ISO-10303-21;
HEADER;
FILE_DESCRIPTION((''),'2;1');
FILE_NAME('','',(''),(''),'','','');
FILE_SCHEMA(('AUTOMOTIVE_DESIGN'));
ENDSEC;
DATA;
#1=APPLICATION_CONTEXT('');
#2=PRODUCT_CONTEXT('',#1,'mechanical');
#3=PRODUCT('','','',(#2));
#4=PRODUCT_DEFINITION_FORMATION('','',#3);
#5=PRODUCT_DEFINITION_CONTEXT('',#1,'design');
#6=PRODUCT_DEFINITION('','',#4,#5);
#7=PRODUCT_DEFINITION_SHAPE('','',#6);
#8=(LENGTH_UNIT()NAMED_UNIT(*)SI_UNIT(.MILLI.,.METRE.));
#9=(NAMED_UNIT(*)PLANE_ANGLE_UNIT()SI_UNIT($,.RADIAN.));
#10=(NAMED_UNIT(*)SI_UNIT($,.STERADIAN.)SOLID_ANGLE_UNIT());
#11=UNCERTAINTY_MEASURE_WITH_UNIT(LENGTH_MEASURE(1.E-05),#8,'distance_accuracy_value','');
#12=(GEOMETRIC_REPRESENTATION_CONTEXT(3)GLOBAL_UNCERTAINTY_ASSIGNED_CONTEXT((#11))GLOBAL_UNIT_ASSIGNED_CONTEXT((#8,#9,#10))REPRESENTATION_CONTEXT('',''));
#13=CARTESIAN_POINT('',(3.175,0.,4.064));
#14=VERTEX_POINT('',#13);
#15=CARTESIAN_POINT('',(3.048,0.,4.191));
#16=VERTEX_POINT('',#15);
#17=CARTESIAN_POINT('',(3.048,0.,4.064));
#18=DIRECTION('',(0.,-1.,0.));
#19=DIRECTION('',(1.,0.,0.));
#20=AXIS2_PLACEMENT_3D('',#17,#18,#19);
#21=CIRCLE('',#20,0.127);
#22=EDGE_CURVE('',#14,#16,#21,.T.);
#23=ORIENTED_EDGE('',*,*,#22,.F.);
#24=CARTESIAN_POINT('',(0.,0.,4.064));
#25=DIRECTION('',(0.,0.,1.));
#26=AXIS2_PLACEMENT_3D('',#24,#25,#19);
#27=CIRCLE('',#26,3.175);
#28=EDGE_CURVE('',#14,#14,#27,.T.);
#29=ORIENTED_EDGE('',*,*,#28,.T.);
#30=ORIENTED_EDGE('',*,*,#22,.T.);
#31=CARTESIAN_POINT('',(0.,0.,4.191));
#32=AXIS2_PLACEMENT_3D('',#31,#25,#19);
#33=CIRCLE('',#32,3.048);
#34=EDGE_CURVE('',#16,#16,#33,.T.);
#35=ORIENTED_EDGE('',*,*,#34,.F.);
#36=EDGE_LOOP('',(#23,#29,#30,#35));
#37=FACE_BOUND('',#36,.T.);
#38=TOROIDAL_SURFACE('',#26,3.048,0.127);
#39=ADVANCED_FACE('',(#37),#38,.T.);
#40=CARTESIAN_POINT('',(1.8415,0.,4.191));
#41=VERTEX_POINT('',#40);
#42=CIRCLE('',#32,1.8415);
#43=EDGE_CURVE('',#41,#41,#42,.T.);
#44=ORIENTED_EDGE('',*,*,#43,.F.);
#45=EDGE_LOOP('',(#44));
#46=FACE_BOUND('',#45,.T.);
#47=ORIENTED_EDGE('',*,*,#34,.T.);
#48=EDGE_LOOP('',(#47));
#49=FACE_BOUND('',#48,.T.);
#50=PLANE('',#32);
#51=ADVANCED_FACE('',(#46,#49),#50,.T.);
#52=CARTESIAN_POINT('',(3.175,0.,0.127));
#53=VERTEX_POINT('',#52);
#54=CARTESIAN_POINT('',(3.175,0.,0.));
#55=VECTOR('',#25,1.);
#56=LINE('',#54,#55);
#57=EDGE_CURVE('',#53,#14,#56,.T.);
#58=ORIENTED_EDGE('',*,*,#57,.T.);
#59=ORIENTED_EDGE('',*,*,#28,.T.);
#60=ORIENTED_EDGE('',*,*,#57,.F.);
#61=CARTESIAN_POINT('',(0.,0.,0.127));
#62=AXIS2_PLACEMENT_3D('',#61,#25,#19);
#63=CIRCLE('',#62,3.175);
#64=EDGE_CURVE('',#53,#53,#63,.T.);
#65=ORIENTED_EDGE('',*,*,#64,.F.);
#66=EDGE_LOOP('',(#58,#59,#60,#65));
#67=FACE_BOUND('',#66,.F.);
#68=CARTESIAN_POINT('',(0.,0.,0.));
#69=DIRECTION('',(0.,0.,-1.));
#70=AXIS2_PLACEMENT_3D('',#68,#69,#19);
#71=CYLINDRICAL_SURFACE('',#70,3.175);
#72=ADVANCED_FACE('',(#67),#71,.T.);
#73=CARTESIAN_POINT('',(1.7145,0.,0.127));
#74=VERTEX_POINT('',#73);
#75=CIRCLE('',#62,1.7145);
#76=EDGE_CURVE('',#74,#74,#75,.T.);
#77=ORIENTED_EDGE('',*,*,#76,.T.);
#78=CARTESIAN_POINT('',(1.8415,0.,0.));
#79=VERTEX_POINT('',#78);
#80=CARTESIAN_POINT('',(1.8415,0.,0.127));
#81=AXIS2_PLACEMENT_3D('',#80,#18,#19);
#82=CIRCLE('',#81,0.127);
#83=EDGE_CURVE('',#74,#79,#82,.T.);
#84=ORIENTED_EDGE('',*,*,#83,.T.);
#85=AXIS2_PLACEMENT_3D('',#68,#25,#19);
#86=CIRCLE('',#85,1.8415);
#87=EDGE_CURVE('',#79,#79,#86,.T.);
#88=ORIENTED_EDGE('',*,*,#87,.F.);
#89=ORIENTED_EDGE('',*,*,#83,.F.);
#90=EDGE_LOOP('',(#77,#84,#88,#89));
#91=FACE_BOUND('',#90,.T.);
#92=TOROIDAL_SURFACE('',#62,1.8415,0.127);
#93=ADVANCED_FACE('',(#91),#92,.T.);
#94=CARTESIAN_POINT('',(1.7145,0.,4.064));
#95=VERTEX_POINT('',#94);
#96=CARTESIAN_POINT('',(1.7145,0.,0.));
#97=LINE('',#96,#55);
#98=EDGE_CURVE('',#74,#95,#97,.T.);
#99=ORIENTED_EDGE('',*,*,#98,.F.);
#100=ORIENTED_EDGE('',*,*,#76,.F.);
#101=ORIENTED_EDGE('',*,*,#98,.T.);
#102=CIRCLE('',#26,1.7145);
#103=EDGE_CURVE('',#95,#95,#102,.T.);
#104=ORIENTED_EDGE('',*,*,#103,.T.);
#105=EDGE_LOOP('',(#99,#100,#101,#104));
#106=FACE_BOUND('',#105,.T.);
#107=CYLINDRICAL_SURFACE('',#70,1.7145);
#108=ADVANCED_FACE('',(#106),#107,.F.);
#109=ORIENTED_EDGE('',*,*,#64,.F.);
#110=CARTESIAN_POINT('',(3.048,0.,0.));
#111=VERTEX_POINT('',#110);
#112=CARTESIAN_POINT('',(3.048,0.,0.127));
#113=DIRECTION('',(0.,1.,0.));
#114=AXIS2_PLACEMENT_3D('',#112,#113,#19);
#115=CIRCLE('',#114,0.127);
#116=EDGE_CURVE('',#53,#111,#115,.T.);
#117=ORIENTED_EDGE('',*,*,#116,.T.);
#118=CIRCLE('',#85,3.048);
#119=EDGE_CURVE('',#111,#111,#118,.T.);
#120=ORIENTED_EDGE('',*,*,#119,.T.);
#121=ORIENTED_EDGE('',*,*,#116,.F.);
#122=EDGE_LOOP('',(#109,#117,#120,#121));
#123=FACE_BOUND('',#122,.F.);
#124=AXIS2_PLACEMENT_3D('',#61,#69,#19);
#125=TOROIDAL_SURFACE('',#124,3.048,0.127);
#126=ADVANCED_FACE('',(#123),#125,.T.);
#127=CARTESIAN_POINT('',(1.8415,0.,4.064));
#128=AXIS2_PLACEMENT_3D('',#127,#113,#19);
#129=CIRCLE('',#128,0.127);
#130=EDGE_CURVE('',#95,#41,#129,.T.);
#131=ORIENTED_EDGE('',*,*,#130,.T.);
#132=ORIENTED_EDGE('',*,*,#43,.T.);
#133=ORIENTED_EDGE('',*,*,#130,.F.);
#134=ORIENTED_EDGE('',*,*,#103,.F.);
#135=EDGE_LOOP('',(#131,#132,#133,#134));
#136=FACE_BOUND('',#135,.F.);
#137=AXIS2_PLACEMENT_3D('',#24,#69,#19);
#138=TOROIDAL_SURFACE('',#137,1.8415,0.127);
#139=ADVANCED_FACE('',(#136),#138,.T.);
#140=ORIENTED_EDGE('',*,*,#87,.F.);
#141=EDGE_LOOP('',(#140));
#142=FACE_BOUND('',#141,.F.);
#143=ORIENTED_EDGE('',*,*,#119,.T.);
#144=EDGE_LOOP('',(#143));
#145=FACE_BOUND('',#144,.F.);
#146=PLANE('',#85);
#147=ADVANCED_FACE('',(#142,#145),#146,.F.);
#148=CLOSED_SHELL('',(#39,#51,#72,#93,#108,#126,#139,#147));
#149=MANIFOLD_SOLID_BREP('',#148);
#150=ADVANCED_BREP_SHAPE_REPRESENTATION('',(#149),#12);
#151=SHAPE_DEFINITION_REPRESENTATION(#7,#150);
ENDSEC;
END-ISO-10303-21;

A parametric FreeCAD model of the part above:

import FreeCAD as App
import Part
import Sketcher

V = App.Vector
Q = App.Units.Quantity


def edges_at(feature, points):
    """Names of the edges that pass closest to the given points."""
    edges = feature.Shape.Edges
    near = lambda p: min(range(len(edges)), key=lambda i: edges[i].distToShape(Part.Vertex(*p))[0])
    return sorted({f"Edge{near(p) + 1}" for p in points})

doc = App.newDocument("Part")
body = doc.addObject("PartDesign::Body", "Body")

sketch1 = doc.addObject("Sketcher::SketchObject", "Sketch")
body.addObject(sketch1)
sketch1.AttachmentSupport = (doc.XY_Plane, [""])
sketch1.MapMode = "FlatFace"
sketch1.addGeometry([
    Part.Circle(V(0, 0, 0), V(0, 0, 1), 3.2),
    Part.Circle(V(0, 0, 0), V(0, 0, 1), 1.7),
], False)
sketch1.addConstraint([
    Sketcher.Constraint("Coincident", 0, 3, -1, 1),
    Sketcher.Constraint("Coincident", 1, 3, -1, 1),
    Sketcher.Constraint("Diameter", 0, Q("0.25 in")),
    Sketcher.Constraint("Diameter", 1, Q("0.135 in")),
])
pad1 = doc.addObject("PartDesign::Pad", "Pad")
body.addObject(pad1)
pad1.Profile = sketch1
pad1.Length = Q("0.165 in")
doc.recompute()

fillet = doc.addObject("PartDesign::Fillet", "Fillet")
body.addObject(fillet)
fillet.Base = (pad1, edges_at(pad1, [
    (-1.714, 0, 4.191),
    (-3.175, 0, 4.191),
    (-1.714, 0, 0),
    (-3.175, 0, 0),
]))
fillet.Radius = Q("0.005 in")

doc.recompute()
